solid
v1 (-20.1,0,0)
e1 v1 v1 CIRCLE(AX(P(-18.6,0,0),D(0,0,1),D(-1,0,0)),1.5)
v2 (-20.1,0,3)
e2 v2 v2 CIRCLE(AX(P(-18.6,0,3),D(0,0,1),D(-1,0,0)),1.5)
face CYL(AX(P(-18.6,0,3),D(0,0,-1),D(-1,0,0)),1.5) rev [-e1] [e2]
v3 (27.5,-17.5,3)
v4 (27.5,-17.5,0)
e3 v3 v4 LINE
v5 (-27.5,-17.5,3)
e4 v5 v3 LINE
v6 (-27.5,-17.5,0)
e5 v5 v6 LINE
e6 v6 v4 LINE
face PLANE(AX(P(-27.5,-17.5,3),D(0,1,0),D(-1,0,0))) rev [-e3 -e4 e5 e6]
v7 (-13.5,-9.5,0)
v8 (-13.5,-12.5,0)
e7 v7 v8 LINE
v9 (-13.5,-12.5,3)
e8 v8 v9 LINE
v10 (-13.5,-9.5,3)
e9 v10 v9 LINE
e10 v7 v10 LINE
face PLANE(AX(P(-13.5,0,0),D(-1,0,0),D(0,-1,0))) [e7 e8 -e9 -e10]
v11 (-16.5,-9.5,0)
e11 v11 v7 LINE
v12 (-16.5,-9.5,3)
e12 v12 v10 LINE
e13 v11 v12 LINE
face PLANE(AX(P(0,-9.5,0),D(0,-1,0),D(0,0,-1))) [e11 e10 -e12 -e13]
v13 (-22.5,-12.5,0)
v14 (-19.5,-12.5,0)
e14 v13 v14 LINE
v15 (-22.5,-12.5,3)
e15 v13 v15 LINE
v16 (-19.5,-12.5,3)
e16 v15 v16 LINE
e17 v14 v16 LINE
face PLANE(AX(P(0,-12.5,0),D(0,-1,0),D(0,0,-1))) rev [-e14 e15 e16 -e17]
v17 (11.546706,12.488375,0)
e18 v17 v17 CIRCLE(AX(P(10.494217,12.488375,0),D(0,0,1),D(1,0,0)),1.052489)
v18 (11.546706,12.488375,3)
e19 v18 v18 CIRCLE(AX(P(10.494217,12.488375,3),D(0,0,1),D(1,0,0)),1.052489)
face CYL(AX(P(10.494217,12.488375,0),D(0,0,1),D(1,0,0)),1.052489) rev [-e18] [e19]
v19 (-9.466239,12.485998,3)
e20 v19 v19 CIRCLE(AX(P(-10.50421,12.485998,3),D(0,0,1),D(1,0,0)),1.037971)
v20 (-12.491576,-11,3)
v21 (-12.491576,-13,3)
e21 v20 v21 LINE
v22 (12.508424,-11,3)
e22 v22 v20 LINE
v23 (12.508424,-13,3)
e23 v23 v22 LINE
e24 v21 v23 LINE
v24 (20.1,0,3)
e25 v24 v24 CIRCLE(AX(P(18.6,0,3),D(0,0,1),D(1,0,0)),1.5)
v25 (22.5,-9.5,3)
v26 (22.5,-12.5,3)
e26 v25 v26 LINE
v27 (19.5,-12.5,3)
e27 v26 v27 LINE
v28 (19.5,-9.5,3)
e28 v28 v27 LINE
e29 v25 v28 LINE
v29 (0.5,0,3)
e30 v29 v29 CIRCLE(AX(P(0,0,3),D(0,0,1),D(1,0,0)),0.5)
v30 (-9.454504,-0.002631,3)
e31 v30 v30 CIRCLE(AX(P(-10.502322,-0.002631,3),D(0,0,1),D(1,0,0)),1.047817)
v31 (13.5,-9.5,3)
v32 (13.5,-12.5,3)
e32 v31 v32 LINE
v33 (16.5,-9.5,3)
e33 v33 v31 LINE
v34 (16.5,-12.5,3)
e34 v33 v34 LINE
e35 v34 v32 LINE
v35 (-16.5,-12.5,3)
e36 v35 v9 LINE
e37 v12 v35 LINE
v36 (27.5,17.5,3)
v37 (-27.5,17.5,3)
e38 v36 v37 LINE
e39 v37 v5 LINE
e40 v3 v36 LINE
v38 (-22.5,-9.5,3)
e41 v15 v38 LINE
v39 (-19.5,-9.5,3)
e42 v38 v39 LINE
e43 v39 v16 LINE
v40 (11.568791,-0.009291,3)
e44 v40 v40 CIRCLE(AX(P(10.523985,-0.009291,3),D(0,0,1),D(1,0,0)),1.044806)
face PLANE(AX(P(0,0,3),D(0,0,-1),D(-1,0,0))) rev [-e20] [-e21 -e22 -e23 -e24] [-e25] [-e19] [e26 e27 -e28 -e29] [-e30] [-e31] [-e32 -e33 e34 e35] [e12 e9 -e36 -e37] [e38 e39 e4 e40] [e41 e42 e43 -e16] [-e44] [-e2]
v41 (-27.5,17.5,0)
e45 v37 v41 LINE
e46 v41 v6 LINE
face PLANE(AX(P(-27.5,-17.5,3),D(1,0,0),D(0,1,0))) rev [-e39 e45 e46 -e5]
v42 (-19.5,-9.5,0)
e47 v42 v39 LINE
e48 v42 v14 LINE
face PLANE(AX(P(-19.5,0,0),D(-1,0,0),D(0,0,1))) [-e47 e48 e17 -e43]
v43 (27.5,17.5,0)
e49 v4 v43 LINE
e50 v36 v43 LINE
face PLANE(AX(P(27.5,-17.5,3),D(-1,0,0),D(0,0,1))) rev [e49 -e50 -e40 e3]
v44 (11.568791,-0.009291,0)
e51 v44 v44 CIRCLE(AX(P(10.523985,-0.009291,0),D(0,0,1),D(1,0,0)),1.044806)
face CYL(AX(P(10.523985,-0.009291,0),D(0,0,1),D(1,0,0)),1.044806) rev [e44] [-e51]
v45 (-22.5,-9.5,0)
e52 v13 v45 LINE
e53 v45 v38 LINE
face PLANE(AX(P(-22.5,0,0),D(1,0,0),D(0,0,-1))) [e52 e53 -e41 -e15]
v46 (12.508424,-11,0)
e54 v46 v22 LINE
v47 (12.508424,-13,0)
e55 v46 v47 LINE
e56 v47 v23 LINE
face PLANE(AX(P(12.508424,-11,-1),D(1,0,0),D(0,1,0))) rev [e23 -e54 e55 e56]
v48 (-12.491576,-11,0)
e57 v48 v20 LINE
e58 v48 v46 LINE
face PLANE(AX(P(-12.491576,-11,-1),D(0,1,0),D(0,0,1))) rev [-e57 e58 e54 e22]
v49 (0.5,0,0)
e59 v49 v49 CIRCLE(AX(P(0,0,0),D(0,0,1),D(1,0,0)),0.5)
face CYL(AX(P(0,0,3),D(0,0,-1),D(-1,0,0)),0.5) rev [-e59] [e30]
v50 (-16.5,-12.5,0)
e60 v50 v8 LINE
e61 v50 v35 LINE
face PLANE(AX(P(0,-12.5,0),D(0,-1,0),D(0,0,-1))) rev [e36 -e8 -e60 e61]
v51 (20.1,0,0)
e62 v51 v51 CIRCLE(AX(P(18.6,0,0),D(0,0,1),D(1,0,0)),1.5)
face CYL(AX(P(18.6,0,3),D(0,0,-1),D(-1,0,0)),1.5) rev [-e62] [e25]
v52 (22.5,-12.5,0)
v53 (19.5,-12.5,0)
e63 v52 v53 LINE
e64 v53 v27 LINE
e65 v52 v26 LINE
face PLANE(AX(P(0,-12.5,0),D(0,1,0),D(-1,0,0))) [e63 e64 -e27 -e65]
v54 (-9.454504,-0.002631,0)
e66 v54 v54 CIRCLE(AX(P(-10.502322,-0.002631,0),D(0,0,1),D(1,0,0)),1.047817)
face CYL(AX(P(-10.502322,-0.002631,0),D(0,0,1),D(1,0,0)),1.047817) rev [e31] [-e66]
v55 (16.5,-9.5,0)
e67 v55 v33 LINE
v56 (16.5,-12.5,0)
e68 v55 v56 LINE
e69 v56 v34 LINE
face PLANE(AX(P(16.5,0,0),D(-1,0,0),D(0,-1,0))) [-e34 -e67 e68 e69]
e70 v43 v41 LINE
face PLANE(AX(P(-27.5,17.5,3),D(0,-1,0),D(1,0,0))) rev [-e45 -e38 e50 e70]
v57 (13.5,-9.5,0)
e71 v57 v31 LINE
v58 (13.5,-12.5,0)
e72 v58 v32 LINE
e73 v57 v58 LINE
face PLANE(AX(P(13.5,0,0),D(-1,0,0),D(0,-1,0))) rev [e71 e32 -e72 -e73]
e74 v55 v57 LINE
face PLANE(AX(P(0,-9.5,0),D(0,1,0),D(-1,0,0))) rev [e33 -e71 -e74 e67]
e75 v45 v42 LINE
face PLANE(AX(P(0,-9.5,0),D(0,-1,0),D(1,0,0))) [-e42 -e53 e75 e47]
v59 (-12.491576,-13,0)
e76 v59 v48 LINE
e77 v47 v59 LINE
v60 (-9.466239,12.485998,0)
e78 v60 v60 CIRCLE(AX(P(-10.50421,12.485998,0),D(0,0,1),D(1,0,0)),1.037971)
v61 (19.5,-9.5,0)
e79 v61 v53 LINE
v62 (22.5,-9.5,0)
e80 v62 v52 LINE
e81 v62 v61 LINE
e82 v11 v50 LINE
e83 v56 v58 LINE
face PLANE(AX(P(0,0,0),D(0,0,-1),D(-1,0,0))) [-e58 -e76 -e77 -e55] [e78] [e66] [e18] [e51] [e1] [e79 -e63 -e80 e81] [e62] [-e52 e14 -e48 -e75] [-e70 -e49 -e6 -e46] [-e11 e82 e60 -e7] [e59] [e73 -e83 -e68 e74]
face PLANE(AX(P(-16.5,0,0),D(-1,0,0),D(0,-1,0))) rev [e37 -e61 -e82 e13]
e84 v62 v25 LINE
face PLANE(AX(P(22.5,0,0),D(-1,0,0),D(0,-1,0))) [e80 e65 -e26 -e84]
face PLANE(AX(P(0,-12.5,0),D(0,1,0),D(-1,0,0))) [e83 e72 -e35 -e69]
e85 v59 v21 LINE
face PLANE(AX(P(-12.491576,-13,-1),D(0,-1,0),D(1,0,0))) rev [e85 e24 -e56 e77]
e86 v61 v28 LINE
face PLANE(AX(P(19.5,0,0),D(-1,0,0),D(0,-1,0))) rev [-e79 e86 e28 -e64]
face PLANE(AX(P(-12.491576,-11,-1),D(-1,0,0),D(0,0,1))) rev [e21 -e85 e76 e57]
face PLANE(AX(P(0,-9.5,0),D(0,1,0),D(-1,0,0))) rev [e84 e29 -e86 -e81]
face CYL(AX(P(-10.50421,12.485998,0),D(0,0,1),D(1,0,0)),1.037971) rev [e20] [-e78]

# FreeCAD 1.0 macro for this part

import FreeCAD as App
import Part
import Sketcher
from FreeCAD import Vector

doc = App.newDocument("Part")
body = doc.addObject("PartDesign::Body", "Body")

sketch1 = body.newObject("Sketcher::SketchObject", "Sketch")
sketch1.AttachmentSupport = (doc.getObject("XY_Plane"), [""])
sketch1.MapMode = "FlatFace"
sketch1.addGeometry([
    Part.LineSegment(Vector(-27.5, 17.5, 0), Vector(-27.5, -17.5, 0)),
    Part.LineSegment(Vector(-27.5, -17.5, 0), Vector(27.5, -17.5, 0)),
    Part.LineSegment(Vector(27.5, -17.5, 0), Vector(27.5, 17.5, 0)),
    Part.LineSegment(Vector(27.5, 17.5, 0), Vector(-27.5, 17.5, 0)),
    Part.Circle(Vector(-18.6, 0, 0), Vector(0, 0, 1), 1.5),
    Part.Circle(Vector(0, 0, 0), Vector(0, 0, 1), 0.5),
    Part.Circle(Vector(18.6, 0, 0), Vector(0, 0, 1), 1.5),
], False)
sketch1.addConstraint([
    Sketcher.Constraint("Coincident", 0, 2, 1, 1),
    Sketcher.Constraint("Coincident", 1, 2, 2, 1),
    Sketcher.Constraint("Coincident", 2, 2, 3, 1),
    Sketcher.Constraint("Coincident", 3, 2, 0, 1),
    Sketcher.Constraint("Vertical", 0),
    Sketcher.Constraint("Horizontal", 1),
    Sketcher.Constraint("Vertical", 2),
    Sketcher.Constraint("Horizontal", 3),
    Sketcher.Constraint("Coincident", 5, 3, -1, 1),
    Sketcher.Constraint("Equal", 4, 6),
    Sketcher.Constraint("Symmetric", 4, 3, 6, 3, -1, 1),
    Sketcher.Constraint("Symmetric", 0, 2, 2, 2, -1, 1),
    Sketcher.Constraint("PointOnObject", 4, 3, -1),
    Sketcher.Constraint("Diameter", 4, 3.0),
    Sketcher.Constraint("Diameter", 5, 1.0),
    Sketcher.Constraint("DistanceX", 1, 1, 1, 2, 55.0),
    Sketcher.Constraint("DistanceY", 0, 2, 0, 1, 35.0),
    Sketcher.Constraint("DistanceX", 4, 3, -1, 1, 18.6),
])
pad1 = body.newObject("PartDesign::Pad", "Pad")
pad1.Profile = sketch1
pad1.Length = 3

sketch2 = body.newObject("Sketcher::SketchObject", "Sketch001")
sketch2.AttachmentSupport = (doc.getObject("XY_Plane"), [""])
sketch2.MapMode = "FlatFace"
sketch2.AttachmentOffset = App.Placement(Vector(0, 0, 3), App.Rotation())
sketch2.addGeometry([
    Part.LineSegment(Vector(-12.5, -11, 0), Vector(-12.5, -13, 0)),
    Part.LineSegment(Vector(-12.5, -13, 0), Vector(12.5, -13, 0)),
    Part.LineSegment(Vector(12.5, -13, 0), Vector(12.5, -11, 0)),
    Part.LineSegment(Vector(12.5, -11, 0), Vector(-12.5, -11, 0)),
], False)
sketch2.addConstraint([
    Sketcher.Constraint("Coincident", 0, 2, 1, 1),
    Sketcher.Constraint("Coincident", 1, 2, 2, 1),
    Sketcher.Constraint("Coincident", 2, 2, 3, 1),
    Sketcher.Constraint("Coincident", 3, 2, 0, 1),
    Sketcher.Constraint("Vertical", 0),
    Sketcher.Constraint("Horizontal", 1),
    Sketcher.Constraint("Vertical", 2),
    Sketcher.Constraint("Horizontal", 3),
    Sketcher.Constraint("DistanceX", 1, 1, 1, 2, 25.0),
    Sketcher.Constraint("DistanceY", 0, 2, 0, 1, 2.0),
    Sketcher.Constraint("DistanceY", 0, 2, -1, 1, 13.0),
    Sketcher.Constraint("DistanceX", 0, 2, -1, 1, 12.491576),
])
pocket1 = body.newObject("PartDesign::Pocket", "Pocket")
pocket1.Profile = sketch2
pocket1.Length = 4

sketch3 = body.newObject("Sketcher::SketchObject", "Sketch002")
sketch3.AttachmentSupport = (doc.getObject("XY_Plane"), [""])
sketch3.MapMode = "FlatFace"
sketch3.AttachmentOffset = App.Placement(Vector(0, 0, 3), App.Rotation())
sketch3.addGeometry([
    Part.LineSegment(Vector(-22.5, -9.5, 0), Vector(-22.5, -12.5, 0)),
    Part.LineSegment(Vector(-22.5, -12.5, 0), Vector(-19.5, -12.5, 0)),
    Part.LineSegment(Vector(-19.5, -12.5, 0), Vector(-19.5, -9.5, 0)),
    Part.LineSegment(Vector(-19.5, -9.5, 0), Vector(-22.5, -9.5, 0)),
    Part.LineSegment(Vector(-16.5, -9.5, 0), Vector(-16.5, -12.5, 0)),
    Part.LineSegment(Vector(-16.5, -12.5, 0), Vector(-13.5, -12.5, 0)),
    Part.LineSegment(Vector(-13.5, -12.5, 0), Vector(-13.5, -9.5, 0)),
    Part.LineSegment(Vector(-13.5, -9.5, 0), Vector(-16.5, -9.5, 0)),
    Part.LineSegment(Vector(13.5, -9.5, 0), Vector(13.5, -12.5, 0)),
    Part.LineSegment(Vector(13.5, -12.5, 0), Vector(16.5, -12.5, 0)),
    Part.LineSegment(Vector(16.5, -12.5, 0), Vector(16.5, -9.5, 0)),
    Part.LineSegment(Vector(16.5, -9.5, 0), Vector(13.5, -9.5, 0)),
    Part.LineSegment(Vector(19.5, -9.5, 0), Vector(19.5, -12.5, 0)),
    Part.LineSegment(Vector(19.5, -12.5, 0), Vector(22.5, -12.5, 0)),
    Part.LineSegment(Vector(22.5, -12.5, 0), Vector(22.5, -9.5, 0)),
    Part.LineSegment(Vector(22.5, -9.5, 0), Vector(19.5, -9.5, 0)),
], False)
sketch3.addConstraint([
    Sketcher.Constraint("Coincident", 0, 2, 1, 1),
    Sketcher.Constraint("Coincident", 1, 2, 2, 1),
    Sketcher.Constraint("Coincident", 2, 2, 3, 1),
    Sketcher.Constraint("Coincident", 3, 2, 0, 1),
    Sketcher.Constraint("Coincident", 4, 2, 5, 1),
    Sketcher.Constraint("Coincident", 5, 2, 6, 1),
    Sketcher.Constraint("Coincident", 6, 2, 7, 1),
    Sketcher.Constraint("Coincident", 7, 2, 4, 1),
    Sketcher.Constraint("Coincident", 8, 2, 9, 1),
    Sketcher.Constraint("Coincident", 9, 2, 10, 1),
    Sketcher.Constraint("Coincident", 10, 2, 11, 1),
    Sketcher.Constraint("Coincident", 11, 2, 8, 1),
    Sketcher.Constraint("Coincident", 12, 2, 13, 1),
    Sketcher.Constraint("Coincident", 13, 2, 14, 1),
    Sketcher.Constraint("Coincident", 14, 2, 15, 1),
    Sketcher.Constraint("Coincident", 15, 2, 12, 1),
    Sketcher.Constraint("Vertical", 0),
    Sketcher.Constraint("Horizontal", 1),
    Sketcher.Constraint("Vertical", 2),
    Sketcher.Constraint("Horizontal", 3),
    Sketcher.Constraint("Vertical", 4),
    Sketcher.Constraint("Horizontal", 5),
    Sketcher.Constraint("Vertical", 6),
    Sketcher.Constraint("Horizontal", 7),
    Sketcher.Constraint("Vertical", 8),
    Sketcher.Constraint("Horizontal", 9),
    Sketcher.Constraint("Vertical", 10),
    Sketcher.Constraint("Horizontal", 11),
    Sketcher.Constraint("Vertical", 12),
    Sketcher.Constraint("Horizontal", 13),
    Sketcher.Constraint("Vertical", 14),
    Sketcher.Constraint("Horizontal", 15),
    Sketcher.Constraint("Symmetric", 5, 2, 8, 2, -2),
    Sketcher.Constraint("Symmetric", 7, 2, 10, 2, -2),
    Sketcher.Constraint("Symmetric", 1, 2, 12, 2, -2),
    Sketcher.Constraint("Symmetric", 3, 2, 14, 2, -2),
    Sketcher.Constraint("Horizontal", 1, 2, 4, 2),
    Sketcher.Constraint("Horizontal", 3, 2, 6, 2),
    Sketcher.Constraint("Equal", 3, 5),
    Sketcher.Constraint("Equal", 15, 0),
    Sketcher.Constraint("DistanceX", 1, 1, 1, 2, 3.0),
    Sketcher.Constraint("DistanceX", 1, 2, 4, 2, 3.0),
    Sketcher.Constraint("DistanceX", 5, 2, 8, 2, 27.0),
    Sketcher.Constraint("DistanceY", 0, 2, -1, 1, 12.5),
])
pocket2 = body.newObject("PartDesign::Pocket", "Pocket001")
pocket2.Profile = sketch3
pocket2.Length = 3

sketch4 = body.newObject("Sketcher::SketchObject", "Sketch003")
sketch4.AttachmentSupport = (doc.getObject("XY_Plane"), [""])
sketch4.MapMode = "FlatFace"
sketch4.AttachmentOffset = App.Placement(Vector(0, 0, 3), App.Rotation())
sketch4.addGeometry([
    Part.Circle(Vector(-10.5, 0, 0), Vector(0, 0, 1), 1),
    Part.Circle(Vector(10.5, 0, 0), Vector(0, 0, 1), 1),
], False)
sketch4.addConstraint([
    Sketcher.Constraint("Diameter", 1, 2.089612),
    Sketcher.Constraint("Diameter", 0, 2.095635),
    Sketcher.Constraint("DistanceX", 0, 3, -1, 1, 10.502322),
    Sketcher.Constraint("DistanceY", 0, 3, -1, 1, 0.002631),
    Sketcher.Constraint("DistanceY", 1, 3, -1, 1, 0.009291),
    Sketcher.Constraint("DistanceX", -1, 1, 1, 3, 10.523985),
])
pocket3 = body.newObject("PartDesign::Pocket", "Pocket002")
pocket3.Profile = sketch4
pocket3.Length = 3

sketch5 = body.newObject("Sketcher::SketchObject", "Sketch004")
sketch5.AttachmentSupport = (doc.getObject("XY_Plane"), [""])
sketch5.MapMode = "FlatFace"
sketch5.AttachmentOffset = App.Placement(Vector(0, 0, 3), App.Rotation())
sketch5.addGeometry([
    Part.Circle(Vector(-10.5, 12.5, 0), Vector(0, 0, 1), 1),
    Part.Circle(Vector(10.5, 12.5, 0), Vector(0, 0, 1), 1.1),
], False)
sketch5.addConstraint([
    Sketcher.Constraint("Diameter", 1, 2.104978),
    Sketcher.Constraint("Diameter", 0, 2.075942),
    Sketcher.Constraint("DistanceY", -1, 1, 0, 3, 12.485998),
    Sketcher.Constraint("DistanceX", 0, 3, -1, 1, 10.50421),
    Sketcher.Constraint("DistanceX", -1, 1, 1, 3, 10.494217),
    Sketcher.Constraint("DistanceY", -1, 1, 1, 3, 12.488375),
])
pocket4 = body.newObject("PartDesign::Pocket", "Pocket003")
pocket4.Profile = sketch5
pocket4.Length = 3

doc.recompute()
